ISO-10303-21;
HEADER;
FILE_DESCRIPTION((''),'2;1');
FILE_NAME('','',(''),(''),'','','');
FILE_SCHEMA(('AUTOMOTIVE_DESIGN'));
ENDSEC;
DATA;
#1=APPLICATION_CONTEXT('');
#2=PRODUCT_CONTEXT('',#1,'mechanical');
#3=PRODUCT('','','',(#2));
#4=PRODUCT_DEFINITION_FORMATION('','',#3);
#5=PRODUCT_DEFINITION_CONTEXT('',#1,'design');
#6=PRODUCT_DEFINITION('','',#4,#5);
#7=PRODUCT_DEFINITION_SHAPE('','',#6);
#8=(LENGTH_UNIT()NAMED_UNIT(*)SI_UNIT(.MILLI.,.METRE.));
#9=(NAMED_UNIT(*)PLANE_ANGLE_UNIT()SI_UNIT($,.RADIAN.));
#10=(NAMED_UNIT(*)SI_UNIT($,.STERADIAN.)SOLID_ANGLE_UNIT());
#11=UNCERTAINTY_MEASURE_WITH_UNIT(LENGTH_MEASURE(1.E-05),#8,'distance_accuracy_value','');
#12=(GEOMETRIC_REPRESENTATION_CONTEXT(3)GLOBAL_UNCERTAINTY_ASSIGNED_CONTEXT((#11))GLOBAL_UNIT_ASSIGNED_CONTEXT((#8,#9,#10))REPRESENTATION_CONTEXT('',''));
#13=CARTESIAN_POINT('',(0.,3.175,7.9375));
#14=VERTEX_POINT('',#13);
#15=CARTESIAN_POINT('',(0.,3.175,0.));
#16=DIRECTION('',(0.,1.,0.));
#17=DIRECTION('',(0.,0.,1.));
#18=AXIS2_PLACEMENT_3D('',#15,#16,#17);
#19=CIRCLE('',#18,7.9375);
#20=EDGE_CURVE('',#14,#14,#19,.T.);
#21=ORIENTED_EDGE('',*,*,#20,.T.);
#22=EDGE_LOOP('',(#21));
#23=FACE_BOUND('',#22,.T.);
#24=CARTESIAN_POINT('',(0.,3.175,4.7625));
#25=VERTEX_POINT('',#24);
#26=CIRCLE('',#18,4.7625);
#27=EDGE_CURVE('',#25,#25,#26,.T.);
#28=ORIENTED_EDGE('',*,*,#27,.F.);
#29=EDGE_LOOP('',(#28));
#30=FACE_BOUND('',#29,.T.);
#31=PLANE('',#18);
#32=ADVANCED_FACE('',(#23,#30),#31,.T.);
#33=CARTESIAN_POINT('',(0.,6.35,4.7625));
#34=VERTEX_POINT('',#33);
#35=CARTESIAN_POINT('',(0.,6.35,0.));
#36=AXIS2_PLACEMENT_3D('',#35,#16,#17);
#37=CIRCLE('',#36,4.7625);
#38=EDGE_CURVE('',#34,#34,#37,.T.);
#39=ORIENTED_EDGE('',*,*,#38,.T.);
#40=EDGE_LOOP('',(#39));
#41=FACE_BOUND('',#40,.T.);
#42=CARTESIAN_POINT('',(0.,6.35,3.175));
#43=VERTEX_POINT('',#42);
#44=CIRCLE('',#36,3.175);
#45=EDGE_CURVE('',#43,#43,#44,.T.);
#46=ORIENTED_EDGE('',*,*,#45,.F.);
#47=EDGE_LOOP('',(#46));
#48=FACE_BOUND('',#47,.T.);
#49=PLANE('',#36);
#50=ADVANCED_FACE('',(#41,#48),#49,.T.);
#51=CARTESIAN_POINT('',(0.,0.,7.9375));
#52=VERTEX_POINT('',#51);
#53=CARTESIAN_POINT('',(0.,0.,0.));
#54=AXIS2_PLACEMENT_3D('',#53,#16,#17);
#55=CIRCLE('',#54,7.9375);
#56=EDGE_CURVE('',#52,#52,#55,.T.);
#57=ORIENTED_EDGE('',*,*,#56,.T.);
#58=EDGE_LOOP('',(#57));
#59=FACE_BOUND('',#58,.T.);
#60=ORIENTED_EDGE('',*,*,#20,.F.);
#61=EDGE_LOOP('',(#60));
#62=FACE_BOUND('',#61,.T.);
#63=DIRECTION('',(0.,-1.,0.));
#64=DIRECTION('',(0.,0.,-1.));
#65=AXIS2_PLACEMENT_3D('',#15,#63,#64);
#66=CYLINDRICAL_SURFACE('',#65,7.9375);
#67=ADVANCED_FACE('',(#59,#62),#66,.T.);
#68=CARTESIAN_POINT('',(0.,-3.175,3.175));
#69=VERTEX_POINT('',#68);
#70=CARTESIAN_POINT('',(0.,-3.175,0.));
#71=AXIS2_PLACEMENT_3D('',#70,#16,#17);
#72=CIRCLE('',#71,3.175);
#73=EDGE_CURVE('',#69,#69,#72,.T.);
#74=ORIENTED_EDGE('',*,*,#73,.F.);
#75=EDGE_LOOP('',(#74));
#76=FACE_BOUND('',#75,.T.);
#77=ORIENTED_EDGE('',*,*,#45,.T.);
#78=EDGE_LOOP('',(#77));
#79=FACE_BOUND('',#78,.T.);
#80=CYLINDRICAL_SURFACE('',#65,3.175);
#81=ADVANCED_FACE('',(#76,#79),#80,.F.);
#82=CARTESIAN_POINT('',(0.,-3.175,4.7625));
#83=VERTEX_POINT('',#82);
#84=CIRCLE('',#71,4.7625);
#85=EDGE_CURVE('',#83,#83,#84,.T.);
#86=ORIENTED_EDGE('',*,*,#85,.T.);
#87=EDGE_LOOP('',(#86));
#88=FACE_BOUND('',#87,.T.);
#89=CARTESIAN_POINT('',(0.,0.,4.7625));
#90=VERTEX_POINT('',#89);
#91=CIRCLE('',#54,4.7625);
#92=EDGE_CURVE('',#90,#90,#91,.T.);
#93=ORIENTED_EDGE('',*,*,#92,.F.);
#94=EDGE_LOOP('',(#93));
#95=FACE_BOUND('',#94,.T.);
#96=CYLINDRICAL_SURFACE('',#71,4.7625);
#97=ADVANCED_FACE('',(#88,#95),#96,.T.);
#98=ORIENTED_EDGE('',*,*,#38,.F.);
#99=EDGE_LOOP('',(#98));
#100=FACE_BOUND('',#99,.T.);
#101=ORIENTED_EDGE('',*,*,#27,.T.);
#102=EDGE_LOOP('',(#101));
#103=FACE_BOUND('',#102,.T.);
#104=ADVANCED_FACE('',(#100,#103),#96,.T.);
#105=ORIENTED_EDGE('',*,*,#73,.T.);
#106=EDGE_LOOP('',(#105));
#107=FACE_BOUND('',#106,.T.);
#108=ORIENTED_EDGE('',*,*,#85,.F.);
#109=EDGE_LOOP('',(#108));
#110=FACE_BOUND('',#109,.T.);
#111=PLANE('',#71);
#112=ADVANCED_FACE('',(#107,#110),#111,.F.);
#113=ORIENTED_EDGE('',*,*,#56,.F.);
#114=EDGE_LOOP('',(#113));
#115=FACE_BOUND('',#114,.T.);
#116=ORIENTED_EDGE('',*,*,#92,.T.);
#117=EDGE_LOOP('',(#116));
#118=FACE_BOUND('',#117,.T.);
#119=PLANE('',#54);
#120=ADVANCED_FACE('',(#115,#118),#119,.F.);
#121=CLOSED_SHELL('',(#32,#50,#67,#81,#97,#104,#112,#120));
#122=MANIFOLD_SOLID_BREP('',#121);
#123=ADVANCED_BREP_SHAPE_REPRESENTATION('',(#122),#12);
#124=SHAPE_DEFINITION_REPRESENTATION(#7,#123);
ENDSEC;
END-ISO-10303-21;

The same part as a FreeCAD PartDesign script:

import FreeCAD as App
import Part
import Sketcher

V = App.Vector
Q = App.Units.Quantity

doc = App.newDocument("Part")
params = doc.addObject("Spreadsheet::Sheet", "Params")
for row, (alias, value) in enumerate([
    ("sketch1_diameter", "0.25 in"),
    ("sketch1_diameter2", "0.625 in"),
    ("pad1_length", "0.125 in"),
    ("sketch2_diameter", "0.25 in"),
    ("sketch2_diameter2", "0.375 in"),
    ("pad2_length", "0.125 in"),
    ("pad2_length2", "0.25 in"),
], start=1):
    params.set(f"A{row}", alias)
    params.set(f"B{row}", "=" + value)
    params.setAlias(f"B{row}", alias)

body = doc.addObject("PartDesign::Body", "Body")

# Sketch on XZ plane
sketch1 = body.newObject("Sketcher::SketchObject", "Sketch")
sketch1.AttachmentSupport = (doc.getObject("XZ_Plane"), [""])
sketch1.MapMode = "FlatFace"
sketch1.addGeometry([
    Part.Circle(V(0, 0, 0), V(0, 0, 1), 7.9),
    Part.Circle(V(0, 0, 0), V(0, 0, 1), 3.2),
], False)
sketch1.addConstraint([
    Sketcher.Constraint("Coincident", 0, 3, -1, 1),
    Sketcher.Constraint("Coincident", 1, 3, -1, 1),
    Sketcher.Constraint("Diameter", 1, Q("0.25 in")),
    Sketcher.Constraint("Diameter", 0, Q("0.625 in")),
])
sketch1.setExpression("Constraints[2]", "Params.sketch1_diameter")
sketch1.setExpression("Constraints[3]", "Params.sketch1_diameter2")
pad1 = body.newObject("PartDesign::Pad", "Pad")
pad1.Profile = sketch1
pad1.setExpression("Length", "Params.pad1_length")
pad1.Reversed = True

# Sketch on XZ plane
sketch2 = body.newObject("Sketcher::SketchObject", "Sketch001")
sketch2.AttachmentSupport = (doc.getObject("XZ_Plane"), [""])
sketch2.MapMode = "FlatFace"
sketch2.AttachmentOffset = App.Placement(V(0, 0, -0.125 * 25.4), App.Rotation())
sketch2.addGeometry([
    Part.Circle(V(0, 0, 0), V(0, 0, 1), 4.8),
    Part.Circle(V(0, 0, 0), V(0, 0, 1), 3.2),
], False)
sketch2.addConstraint([
    Sketcher.Constraint("Coincident", 0, 3, -1, 1),
    Sketcher.Constraint("Coincident", 1, 3, -1, 1),
    Sketcher.Constraint("Diameter", 1, Q("0.25 in")),
    Sketcher.Constraint("Diameter", 0, Q("0.375 in")),
])
sketch2.setExpression("Constraints[2]", "Params.sketch2_diameter")
sketch2.setExpression("Constraints[3]", "Params.sketch2_diameter2")
pad2 = body.newObject("PartDesign::Pad", "Pad001")
pad2.Profile = sketch2
pad2.Type = "TwoLengths"
pad2.setExpression("Length", "Params.pad2_length")
pad2.setExpression("Length2", "Params.pad2_length2")
pad2.Reversed = True

doc.recompute()
